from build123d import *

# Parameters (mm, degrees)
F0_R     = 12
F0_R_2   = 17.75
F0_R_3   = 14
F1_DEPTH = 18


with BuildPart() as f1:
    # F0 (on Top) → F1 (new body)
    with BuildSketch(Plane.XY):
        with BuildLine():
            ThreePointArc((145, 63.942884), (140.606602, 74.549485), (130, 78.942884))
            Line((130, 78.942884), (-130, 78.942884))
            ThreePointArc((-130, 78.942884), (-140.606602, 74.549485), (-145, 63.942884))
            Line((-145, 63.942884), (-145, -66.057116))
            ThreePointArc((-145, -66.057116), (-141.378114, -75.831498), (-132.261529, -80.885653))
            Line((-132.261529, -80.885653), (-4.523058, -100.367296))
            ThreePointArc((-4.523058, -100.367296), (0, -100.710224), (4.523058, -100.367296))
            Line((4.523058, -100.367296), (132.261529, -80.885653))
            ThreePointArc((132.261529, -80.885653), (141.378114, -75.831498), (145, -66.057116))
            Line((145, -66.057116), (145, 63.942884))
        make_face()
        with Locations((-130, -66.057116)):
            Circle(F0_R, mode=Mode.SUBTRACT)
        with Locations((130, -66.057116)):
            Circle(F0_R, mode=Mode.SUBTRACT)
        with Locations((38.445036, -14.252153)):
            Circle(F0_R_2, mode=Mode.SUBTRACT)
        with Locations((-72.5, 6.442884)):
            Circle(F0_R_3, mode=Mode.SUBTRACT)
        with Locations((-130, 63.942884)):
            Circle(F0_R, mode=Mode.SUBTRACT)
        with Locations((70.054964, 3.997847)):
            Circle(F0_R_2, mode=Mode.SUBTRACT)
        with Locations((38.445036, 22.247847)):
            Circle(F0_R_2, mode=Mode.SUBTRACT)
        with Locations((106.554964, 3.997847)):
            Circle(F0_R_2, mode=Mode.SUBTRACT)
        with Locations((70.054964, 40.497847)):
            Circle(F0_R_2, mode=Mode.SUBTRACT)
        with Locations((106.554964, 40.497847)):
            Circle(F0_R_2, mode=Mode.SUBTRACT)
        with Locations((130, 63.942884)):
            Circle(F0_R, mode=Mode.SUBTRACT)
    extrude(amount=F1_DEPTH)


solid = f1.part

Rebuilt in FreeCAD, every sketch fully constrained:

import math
import FreeCAD as App
import Part
import Sketcher
from FreeCAD import Vector
Q = App.Units.Quantity

doc = App.newDocument("Part")
body = doc.addObject("PartDesign::Body", "Body")

sketch1 = body.newObject("Sketcher::SketchObject", "Sketch")
sketch1.AttachmentSupport = (doc.getObject("XY_Plane"), [""])
sketch1.MapMode = "FlatFace"
sketch1.addGeometry(Part.ArcOfCircle(Part.Circle(Vector(130, 64, 0), Vector(0, 0, 1), 15), math.radians(0), math.radians(90)), False)
sketch1.addGeometry(Part.LineSegment(Vector(130, 79, 0), Vector(-130, 79, 0)), False)
sketch1.addGeometry(Part.ArcOfCircle(Part.Circle(Vector(-130, 64, 0), Vector(0, 0, 1), 15), math.radians(90), math.radians(180)), False)
sketch1.addGeometry(Part.LineSegment(Vector(-145, 64, 0), Vector(-145, -66, 0)), False)
sketch1.addGeometry(Part.ArcOfCircle(Part.Circle(Vector(-130, -66, 0), Vector(0, 0, 1), 15), math.radians(180), math.radians(261)), False)
sketch1.addGeometry(Part.LineSegment(Vector(-132, -81, 0), Vector(-5, -100, 0)), False)
sketch1.addGeometry(Part.ArcOfCircle(Part.Circle(Vector(0, -71, 0), Vector(0, 0, 1), 30), math.radians(-98.67), math.radians(-81.33)), False)
sketch1.addGeometry(Part.LineSegment(Vector(5, -100, 0), Vector(132, -81, 0)), False)
sketch1.addGeometry(Part.ArcOfCircle(Part.Circle(Vector(130, -66, 0), Vector(0, 0, 1), 15), math.radians(-81), math.radians(0)), False)
sketch1.addGeometry(Part.LineSegment(Vector(145, -66, 0), Vector(145, 64, 0)), False)
sketch1.addGeometry(Part.Circle(Vector(-130, -66, 0), Vector(0, 0, 1), 12), False)
sketch1.addGeometry(Part.Circle(Vector(130, -66, 0), Vector(0, 0, 1), 12), False)
sketch1.addGeometry(Part.Circle(Vector(38, -14, 0), Vector(0, 0, 1), 18), False)
sketch1.addGeometry(Part.Circle(Vector(-72, 6, 0), Vector(0, 0, 1), 14), False)
sketch1.addGeometry(Part.Circle(Vector(-130, 64, 0), Vector(0, 0, 1), 12), False)
sketch1.addGeometry(Part.Circle(Vector(70, 4, 0), Vector(0, 0, 1), 18), False)
sketch1.addGeometry(Part.Circle(Vector(38, 22, 0), Vector(0, 0, 1), 18), False)
sketch1.addGeometry(Part.Circle(Vector(107, 4, 0), Vector(0, 0, 1), 18), False)
sketch1.addGeometry(Part.Circle(Vector(70, 40, 0), Vector(0, 0, 1), 18), False)
sketch1.addGeometry(Part.Circle(Vector(107, 40, 0), Vector(0, 0, 1), 18), False)
sketch1.addGeometry(Part.Circle(Vector(130, 64, 0), Vector(0, 0, 1), 12), False)
sketch1.addConstraint(Sketcher.Constraint("Tangent", 0, 2, 1, 1))
sketch1.addConstraint(Sketcher.Constraint("Tangent", 1, 2, 2, 1))
sketch1.addConstraint(Sketcher.Constraint("Tangent", 2, 2, 3, 1))
sketch1.addConstraint(Sketcher.Constraint("Tangent", 3, 2, 4, 1))
sketch1.addConstraint(Sketcher.Constraint("Tangent", 4, 2, 5, 1))
sketch1.addConstraint(Sketcher.Constraint("Tangent", 5, 2, 6, 1))
sketch1.addConstraint(Sketcher.Constraint("Tangent", 6, 2, 7, 1))
sketch1.addConstraint(Sketcher.Constraint("Tangent", 7, 2, 8, 1))
sketch1.addConstraint(Sketcher.Constraint("Tangent", 8, 2, 9, 1))
sketch1.addConstraint(Sketcher.Constraint("Tangent", 9, 2, 0, 1))
sketch1.addConstraint(Sketcher.Constraint("Horizontal", 1))
sketch1.addConstraint(Sketcher.Constraint("Vertical", 3))
sketch1.addConstraint(Sketcher.Constraint("Vertical", 9))
sketch1.addConstraint(Sketcher.Constraint("Coincident", 10, 3, 4, 3))
sketch1.addConstraint(Sketcher.Constraint("Coincident", 11, 3, 8, 3))
sketch1.addConstraint(Sketcher.Constraint("Coincident", 14, 3, 2, 3))
sketch1.addConstraint(Sketcher.Constraint("Coincident", 20, 3, 0, 3))
sketch1.addConstraint(Sketcher.Constraint("Equal", 0, 2))
sketch1.addConstraint(Sketcher.Constraint("Equal", 2, 4))
sketch1.addConstraint(Sketcher.Constraint("Equal", 4, 8))
sketch1.addConstraint(Sketcher.Constraint("Equal", 10, 11))
sketch1.addConstraint(Sketcher.Constraint("Equal", 11, 14))
sketch1.addConstraint(Sketcher.Constraint("Equal", 12, 15))
sketch1.addConstraint(Sketcher.Constraint("Equal", 15, 16))
sketch1.addConstraint(Sketcher.Constraint("Equal", 16, 17))
sketch1.addConstraint(Sketcher.Constraint("Equal", 17, 18))
sketch1.addConstraint(Sketcher.Constraint("Equal", 18, 19))
sketch1.addConstraint(Sketcher.Constraint("Equal", 14, 20))
sketch1.addConstraint(Sketcher.Constraint("Symmetric", 4, 3, 8, 3, -2))
sketch1.addConstraint(Sketcher.Constraint("PointOnObject", 6, 3, -2))
sketch1.addConstraint(Sketcher.Constraint("Horizontal", 15, 3, 17, 3))
sketch1.addConstraint(Sketcher.Constraint("Horizontal", 18, 3, 19, 3))
sketch1.addConstraint(Sketcher.Constraint("Vertical", 12, 3, 16, 3))
sketch1.addConstraint(Sketcher.Constraint("Vertical", 15, 3, 18, 3))
sketch1.addConstraint(Sketcher.Constraint("Vertical", 17, 3, 19, 3))
sketch1.addConstraint(Sketcher.Constraint("Diameter", 10, Q("24 mm")))
sketch1.addConstraint(Sketcher.Constraint("Diameter", 13, Q("28 mm")))
sketch1.addConstraint(Sketcher.Constraint("Radius", 0, Q("15.000001 mm")))
sketch1.addConstraint(Sketcher.Constraint("Diameter", 12, Q("35.5 mm")))
sketch1.addConstraint(Sketcher.Constraint("DistanceX", 1, 2, 1, 1, Q("260 mm")))
sketch1.addConstraint(Sketcher.Constraint("DistanceY", 3, 2, 3, 1, Q("130 mm")))
sketch1.addConstraint(Sketcher.Constraint("DistanceX", 13, 3, -1, 1, Q("72.5 mm")))
sketch1.addConstraint(Sketcher.Constraint("DistanceY", 13, 3, 2, 3, Q("57.499999 mm")))
sketch1.addConstraint(Sketcher.Constraint("DistanceY", 12, 3, 16, 3, Q("36.5 mm")))
sketch1.addConstraint(Sketcher.Constraint("DistanceX", 15, 3, 17, 3, Q("36.5 mm")))
sketch1.addConstraint(Sketcher.Constraint("DistanceY", 15, 3, 18, 3, Q("36.5 mm")))
sketch1.addConstraint(Sketcher.Constraint("Radius", 6, Q("29.999961 mm")))
sketch1.addConstraint(Sketcher.Constraint("DistanceY", 12, 3, 15, 3, Q("18.25 mm")))
sketch1.addConstraint(Sketcher.Constraint("DistanceY", 7, 2, 17, 3, Q("84.8835 mm")))
sketch1.addConstraint(Sketcher.Constraint("DistanceX", 4, 2, -1, 1, Q("132.261529 mm")))
sketch1.addConstraint(Sketcher.Constraint("DistanceX", 6, 2, 12, 3, Q("33.921978 mm")))
sketch1.addConstraint(Sketcher.Constraint("DistanceY", -1, 1, 0, 3, Q("63.942883 mm")))
sketch1.addConstraint(Sketcher.Constraint("DistanceX", -1, 1, 15, 3, Q("70.054964 mm")))
pad1 = body.newObject("PartDesign::Pad", "Pad")
pad1.Profile = sketch1
pad1.Length = 18

doc.recompute()
